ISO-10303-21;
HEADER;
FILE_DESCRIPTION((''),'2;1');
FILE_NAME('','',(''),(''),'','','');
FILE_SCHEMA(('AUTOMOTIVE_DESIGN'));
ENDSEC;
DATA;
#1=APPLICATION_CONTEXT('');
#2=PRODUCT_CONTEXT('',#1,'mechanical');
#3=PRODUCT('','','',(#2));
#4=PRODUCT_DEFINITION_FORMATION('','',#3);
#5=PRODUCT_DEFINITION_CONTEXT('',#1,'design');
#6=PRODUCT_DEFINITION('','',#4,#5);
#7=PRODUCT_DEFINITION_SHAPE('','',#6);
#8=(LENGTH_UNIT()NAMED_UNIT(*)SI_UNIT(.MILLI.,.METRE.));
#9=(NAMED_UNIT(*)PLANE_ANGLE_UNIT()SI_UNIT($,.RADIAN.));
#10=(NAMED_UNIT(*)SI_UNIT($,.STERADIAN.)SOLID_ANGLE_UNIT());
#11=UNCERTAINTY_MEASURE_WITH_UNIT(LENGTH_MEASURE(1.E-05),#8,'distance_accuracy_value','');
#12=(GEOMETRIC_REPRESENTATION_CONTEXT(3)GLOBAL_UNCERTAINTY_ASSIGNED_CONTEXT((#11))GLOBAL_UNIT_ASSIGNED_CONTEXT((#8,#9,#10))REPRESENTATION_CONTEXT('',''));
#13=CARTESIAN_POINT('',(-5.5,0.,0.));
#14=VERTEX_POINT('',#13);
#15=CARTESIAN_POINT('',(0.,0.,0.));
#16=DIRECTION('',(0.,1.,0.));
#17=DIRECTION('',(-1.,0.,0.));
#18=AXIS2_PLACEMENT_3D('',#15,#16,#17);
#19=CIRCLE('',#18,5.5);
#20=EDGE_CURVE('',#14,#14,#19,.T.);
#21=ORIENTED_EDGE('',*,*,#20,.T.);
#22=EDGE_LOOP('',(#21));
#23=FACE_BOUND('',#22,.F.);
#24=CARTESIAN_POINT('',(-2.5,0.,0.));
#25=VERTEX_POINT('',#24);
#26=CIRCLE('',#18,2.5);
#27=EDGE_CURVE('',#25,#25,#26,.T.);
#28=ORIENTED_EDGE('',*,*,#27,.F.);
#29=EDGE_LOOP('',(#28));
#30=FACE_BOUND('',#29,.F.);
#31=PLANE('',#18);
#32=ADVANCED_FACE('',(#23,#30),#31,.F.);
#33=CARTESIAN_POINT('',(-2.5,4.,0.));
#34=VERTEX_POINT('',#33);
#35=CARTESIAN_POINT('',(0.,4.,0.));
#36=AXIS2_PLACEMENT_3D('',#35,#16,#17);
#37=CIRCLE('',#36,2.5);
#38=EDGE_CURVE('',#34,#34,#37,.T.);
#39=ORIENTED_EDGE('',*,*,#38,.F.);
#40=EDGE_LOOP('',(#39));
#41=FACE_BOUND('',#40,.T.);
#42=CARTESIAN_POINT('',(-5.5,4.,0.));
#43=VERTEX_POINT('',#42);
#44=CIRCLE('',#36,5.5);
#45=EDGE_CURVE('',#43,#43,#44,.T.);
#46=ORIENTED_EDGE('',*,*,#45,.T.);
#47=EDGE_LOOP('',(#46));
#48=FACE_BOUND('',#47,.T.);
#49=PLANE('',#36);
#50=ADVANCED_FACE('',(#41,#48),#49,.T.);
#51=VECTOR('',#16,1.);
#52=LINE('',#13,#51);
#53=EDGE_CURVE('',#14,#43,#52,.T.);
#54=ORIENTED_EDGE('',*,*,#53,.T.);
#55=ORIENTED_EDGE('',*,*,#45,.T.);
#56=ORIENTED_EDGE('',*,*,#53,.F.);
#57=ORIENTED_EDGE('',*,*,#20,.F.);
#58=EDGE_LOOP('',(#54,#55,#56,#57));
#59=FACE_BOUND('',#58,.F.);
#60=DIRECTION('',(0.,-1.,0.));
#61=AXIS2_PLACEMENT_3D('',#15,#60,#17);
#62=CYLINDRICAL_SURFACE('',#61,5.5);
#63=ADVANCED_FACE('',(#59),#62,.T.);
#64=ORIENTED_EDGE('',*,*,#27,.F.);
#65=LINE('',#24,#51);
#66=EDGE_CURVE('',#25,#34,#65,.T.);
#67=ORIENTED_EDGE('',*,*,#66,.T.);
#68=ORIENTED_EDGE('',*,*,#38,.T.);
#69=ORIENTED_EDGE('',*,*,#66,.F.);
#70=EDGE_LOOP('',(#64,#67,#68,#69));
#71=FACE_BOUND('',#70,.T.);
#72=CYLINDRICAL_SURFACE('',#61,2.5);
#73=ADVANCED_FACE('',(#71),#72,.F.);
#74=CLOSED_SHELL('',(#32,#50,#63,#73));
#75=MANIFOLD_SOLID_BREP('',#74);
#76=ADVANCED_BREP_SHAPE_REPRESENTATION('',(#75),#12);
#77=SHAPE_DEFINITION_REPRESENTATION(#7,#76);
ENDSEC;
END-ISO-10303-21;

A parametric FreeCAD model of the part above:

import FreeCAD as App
import Part
import Sketcher
from FreeCAD import Vector

doc = App.newDocument("Part")
body = doc.addObject("PartDesign::Body", "Body")

sketch1 = body.newObject("Sketcher::SketchObject", "Sketch")
sketch1.AttachmentSupport = (doc.getObject("XZ_Plane"), [""])
sketch1.MapMode = "FlatFace"
sketch1.addGeometry(Part.Circle(Vector(0, 0, 0), Vector(0, 0, 1), 5.5), False)
sketch1.addGeometry(Part.Circle(Vector(0, 0, 0), Vector(0, 0, 1), 2.5), False)
sketch1.addConstraint(Sketcher.Constraint("Coincident", 0, 3, -1, 1))
sketch1.addConstraint(Sketcher.Constraint("Coincident", 1, 3, -1, 1))
sketch1.addConstraint(Sketcher.Constraint("Diameter", 0, 11.0))
sketch1.addConstraint(Sketcher.Constraint("Diameter", 1, 5.0))
pad1 = body.newObject("PartDesign::Pad", "Pad")
pad1.Profile = sketch1
pad1.Length = 4
pad1.Reversed = True

doc.recompute()
